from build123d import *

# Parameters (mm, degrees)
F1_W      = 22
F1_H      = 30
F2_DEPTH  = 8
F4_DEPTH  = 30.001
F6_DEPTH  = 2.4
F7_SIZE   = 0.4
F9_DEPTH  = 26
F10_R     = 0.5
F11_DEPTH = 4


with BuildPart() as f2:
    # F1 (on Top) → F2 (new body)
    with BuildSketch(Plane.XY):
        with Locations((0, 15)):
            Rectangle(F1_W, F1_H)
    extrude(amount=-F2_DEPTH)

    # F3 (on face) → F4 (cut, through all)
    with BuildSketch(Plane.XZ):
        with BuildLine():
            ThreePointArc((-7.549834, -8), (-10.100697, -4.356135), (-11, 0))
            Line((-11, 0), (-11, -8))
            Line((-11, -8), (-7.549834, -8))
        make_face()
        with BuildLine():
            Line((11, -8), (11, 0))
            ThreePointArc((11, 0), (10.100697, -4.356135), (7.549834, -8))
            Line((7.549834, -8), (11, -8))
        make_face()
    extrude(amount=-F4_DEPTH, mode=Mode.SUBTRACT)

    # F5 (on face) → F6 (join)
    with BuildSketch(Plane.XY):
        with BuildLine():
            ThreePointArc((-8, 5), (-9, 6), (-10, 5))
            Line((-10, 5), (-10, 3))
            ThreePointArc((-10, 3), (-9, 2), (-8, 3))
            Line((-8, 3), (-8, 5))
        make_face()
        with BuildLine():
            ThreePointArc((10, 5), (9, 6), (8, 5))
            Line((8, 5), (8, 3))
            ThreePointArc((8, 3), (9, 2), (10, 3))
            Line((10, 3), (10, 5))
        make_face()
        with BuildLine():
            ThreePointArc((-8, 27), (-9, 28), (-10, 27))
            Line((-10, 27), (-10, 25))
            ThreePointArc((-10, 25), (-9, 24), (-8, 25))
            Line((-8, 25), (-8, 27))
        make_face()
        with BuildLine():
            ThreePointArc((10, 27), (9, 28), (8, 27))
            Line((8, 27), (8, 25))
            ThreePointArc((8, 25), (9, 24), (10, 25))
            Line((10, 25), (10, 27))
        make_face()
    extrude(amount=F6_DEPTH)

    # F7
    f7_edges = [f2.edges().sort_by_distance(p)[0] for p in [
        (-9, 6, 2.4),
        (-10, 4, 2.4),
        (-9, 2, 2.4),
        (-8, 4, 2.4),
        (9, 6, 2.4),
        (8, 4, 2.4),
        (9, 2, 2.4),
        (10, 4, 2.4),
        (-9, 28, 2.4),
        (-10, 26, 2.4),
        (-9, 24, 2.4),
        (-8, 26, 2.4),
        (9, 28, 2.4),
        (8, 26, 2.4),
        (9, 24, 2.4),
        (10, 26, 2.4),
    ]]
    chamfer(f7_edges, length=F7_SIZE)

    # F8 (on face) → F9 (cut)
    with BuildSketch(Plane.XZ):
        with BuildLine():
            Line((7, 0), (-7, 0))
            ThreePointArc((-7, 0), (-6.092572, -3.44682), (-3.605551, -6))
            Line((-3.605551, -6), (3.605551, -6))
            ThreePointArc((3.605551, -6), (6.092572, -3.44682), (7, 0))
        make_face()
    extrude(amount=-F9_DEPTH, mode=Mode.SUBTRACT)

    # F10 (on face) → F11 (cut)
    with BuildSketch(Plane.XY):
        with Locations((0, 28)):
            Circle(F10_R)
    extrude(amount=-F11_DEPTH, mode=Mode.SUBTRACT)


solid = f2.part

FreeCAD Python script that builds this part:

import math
import FreeCAD as App
import Part
import Sketcher

V = App.Vector


def edges_at(feature, points):
    """Names of the edges that pass closest to the given points."""
    edges = feature.Shape.Edges
    near = lambda p: min(range(len(edges)), key=lambda i: edges[i].distToShape(Part.Vertex(*p))[0])
    return sorted({f"Edge{near(p) + 1}" for p in points})

doc = App.newDocument("Part")
body = doc.addObject("PartDesign::Body", "Body")

sketch1 = doc.addObject("Sketcher::SketchObject", "Sketch")
body.addObject(sketch1)
sketch1.AttachmentSupport = (doc.XY_Plane, [""])
sketch1.MapMode = "FlatFace"
sketch1.addGeometry([
    Part.LineSegment(V(-11, 30, 0), V(-11, 0, 0)),
    Part.LineSegment(V(-11, 0, 0), V(11, 0, 0)),
    Part.LineSegment(V(11, 0, 0), V(11, 30, 0)),
    Part.LineSegment(V(11, 30, 0), V(-11, 30, 0)),
], False)
sketch1.addConstraint([
    Sketcher.Constraint("Coincident", 0, 2, 1, 1),
    Sketcher.Constraint("Coincident", 1, 2, 2, 1),
    Sketcher.Constraint("Coincident", 2, 2, 3, 1),
    Sketcher.Constraint("Coincident", 3, 2, 0, 1),
    Sketcher.Constraint("Vertical", 0),
    Sketcher.Constraint("Horizontal", 1),
    Sketcher.Constraint("Vertical", 2),
    Sketcher.Constraint("Horizontal", 3),
    Sketcher.Constraint("Symmetric", 0, 2, 1, 2, -1, 1),
    Sketcher.Constraint("DistanceX", 1, 1, 1, 2, 22.0),
    Sketcher.Constraint("DistanceY", 0, 2, 0, 1, 30.0),
])
pad1 = doc.addObject("PartDesign::Pad", "Pad")
body.addObject(pad1)
pad1.Profile = sketch1
pad1.Length = 8
pad1.Reversed = True

sketch2 = doc.addObject("Sketcher::SketchObject", "Sketch001")
body.addObject(sketch2)
sketch2.AttachmentSupport = (doc.XZ_Plane, [""])
sketch2.MapMode = "FlatFace"
sketch2.addGeometry([
    Part.ArcOfCircle(Part.Circle(V(0.000002, 0.000001, 0), V(0, 0, 1), 11.000002), math.radians(-179.999993), math.radians(-133.34176)),
    Part.LineSegment(V(-11, 0, 0), V(-11, -8, 0)),
    Part.LineSegment(V(-11, -8, 0), V(-7.549834, -8, 0)),
    Part.LineSegment(V(11, -8, 0), V(11, 0, 0)),
    Part.ArcOfCircle(Part.Circle(V(-0.000002, 0.000001, 0), V(0, 0, 1), 11.000002), math.radians(-46.65824), math.radians(-0.000007)),
    Part.LineSegment(V(7.549834, -8, 0), V(11, -8, 0)),
], False)
sketch2.addConstraint([
    Sketcher.Constraint("Tangent", 0, 1, 1, 1),
    Sketcher.Constraint("Coincident", 1, 2, 2, 1),
    Sketcher.Constraint("Coincident", 2, 2, 0, 2),
    Sketcher.Constraint("Tangent", 3, 2, 4, 2),
    Sketcher.Constraint("Coincident", 4, 1, 5, 1),
    Sketcher.Constraint("Coincident", 5, 2, 3, 1),
    Sketcher.Constraint("Vertical", 1),
    Sketcher.Constraint("Horizontal", 2),
    Sketcher.Constraint("Vertical", 3),
    Sketcher.Constraint("Horizontal", 5),
    Sketcher.Constraint("Coincident", 0, 3, -1, 1),
    Sketcher.Constraint("Coincident", 4, 3, -1, 1),
    Sketcher.Constraint("Equal", 0, 4),
    Sketcher.Constraint("Horizontal", 2, 2, 4, 1),
    Sketcher.Constraint("DistanceY", 1, 2, 1, 1, 8.0),
    Sketcher.Constraint("DistanceX", 0, 1, -1, 1, 11.0),
])
pocket1 = doc.addObject("PartDesign::Pocket", "Pocket")
body.addObject(pocket1)
pocket1.Profile = sketch2
pocket1.Type = "ThroughAll"

sketch3 = doc.addObject("Sketcher::SketchObject", "Sketch002")
body.addObject(sketch3)
sketch3.AttachmentSupport = (doc.XY_Plane, [""])
sketch3.MapMode = "FlatFace"
sketch3.addGeometry([
    Part.ArcOfCircle(Part.Circle(V(-9, 5, 0), V(0, 0, 1), 1), math.radians(0), math.radians(180)),
    Part.LineSegment(V(-10, 5, 0), V(-10, 3, 0)),
    Part.ArcOfCircle(Part.Circle(V(-9, 3, 0), V(0, 0, 1), 1), math.radians(180), math.radians(360)),
    Part.LineSegment(V(-8, 3, 0), V(-8, 5, 0)),
    Part.ArcOfCircle(Part.Circle(V(9, 5, 0), V(0, 0, 1), 1), math.radians(0), math.radians(180)),
    Part.LineSegment(V(8, 5, 0), V(8, 3, 0)),
    Part.ArcOfCircle(Part.Circle(V(9, 3, 0), V(0, 0, 1), 1), math.radians(180), math.radians(360)),
    Part.LineSegment(V(10, 3, 0), V(10, 5, 0)),
    Part.ArcOfCircle(Part.Circle(V(-9, 27, 0), V(0, 0, 1), 1), math.radians(0), math.radians(180)),
    Part.LineSegment(V(-10, 27, 0), V(-10, 25, 0)),
    Part.ArcOfCircle(Part.Circle(V(-9, 25, 0), V(0, 0, 1), 1), math.radians(180), math.radians(360)),
    Part.LineSegment(V(-8, 25, 0), V(-8, 27, 0)),
    Part.ArcOfCircle(Part.Circle(V(9, 27, 0), V(0, 0, 1), 1), math.radians(0), math.radians(180)),
    Part.LineSegment(V(8, 27, 0), V(8, 25, 0)),
    Part.ArcOfCircle(Part.Circle(V(9, 25, 0), V(0, 0, 1), 1), math.radians(180), math.radians(360)),
    Part.LineSegment(V(10, 25, 0), V(10, 27, 0)),
], False)
sketch3.addConstraint([
    Sketcher.Constraint("Tangent", 0, 2, 1, 1),
    Sketcher.Constraint("Tangent", 1, 2, 2, 1),
    Sketcher.Constraint("Tangent", 2, 2, 3, 1),
    Sketcher.Constraint("Tangent", 3, 2, 0, 1),
    Sketcher.Constraint("Tangent", 4, 2, 5, 1),
    Sketcher.Constraint("Tangent", 5, 2, 6, 1),
    Sketcher.Constraint("Tangent", 6, 2, 7, 1),
    Sketcher.Constraint("Tangent", 7, 2, 4, 1),
    Sketcher.Constraint("Tangent", 8, 2, 9, 1),
    Sketcher.Constraint("Tangent", 9, 2, 10, 1),
    Sketcher.Constraint("Tangent", 10, 2, 11, 1),
    Sketcher.Constraint("Tangent", 11, 2, 8, 1),
    Sketcher.Constraint("Tangent", 12, 2, 13, 1),
    Sketcher.Constraint("Tangent", 13, 2, 14, 1),
    Sketcher.Constraint("Tangent", 14, 2, 15, 1),
    Sketcher.Constraint("Tangent", 15, 2, 12, 1),
    Sketcher.Constraint("Vertical", 1),
    Sketcher.Constraint("Vertical", 3),
    Sketcher.Constraint("Vertical", 5),
    Sketcher.Constraint("Vertical", 7),
    Sketcher.Constraint("Vertical", 9),
    Sketcher.Constraint("Vertical", 11),
    Sketcher.Constraint("Vertical", 13),
    Sketcher.Constraint("Vertical", 15),
    Sketcher.Constraint("Equal", 2, 4),
    Sketcher.Constraint("Equal", 6, 8),
    Sketcher.Constraint("Equal", 10, 12),
    Sketcher.Constraint("Symmetric", 0, 3, 4, 3, -2),
    Sketcher.Constraint("Symmetric", 8, 3, 12, 3, -2),
    Sketcher.Constraint("Horizontal", 2, 3, 6, 3),
    Sketcher.Constraint("Horizontal", 10, 3, 14, 3),
    Sketcher.Constraint("Vertical", 2, 3, 8, 3),
    Sketcher.Constraint("Equal", 7, 9),
    Sketcher.Constraint("Radius", 0, 1.0),
    Sketcher.Constraint("DistanceY", 1, 2, 1, 1, 2.0),
    Sketcher.Constraint("DistanceX", 0, 3, -1, 1, 9.0),
    Sketcher.Constraint("DistanceY", -1, 1, 0, 3, 5.0),
    Sketcher.Constraint("DistanceY", -1, 1, 8, 3, 27.0),
])
pad2 = doc.addObject("PartDesign::Pad", "Pad001")
body.addObject(pad2)
pad2.Profile = sketch3
pad2.Length = 2.4
doc.recompute()

chamfer = doc.addObject("PartDesign::Chamfer", "Chamfer")
body.addObject(chamfer)
chamfer.Base = (pad2, edges_at(pad2, [
    (-9, 6, 2.4),
    (-10, 4, 2.4),
    (-9, 2, 2.4),
    (-8, 4, 2.4),
    (9, 6, 2.4),
    (8, 4, 2.4),
    (9, 2, 2.4),
    (10, 4, 2.4),
    (-9, 28, 2.4),
    (-10, 26, 2.4),
    (-9, 24, 2.4),
    (-8, 26, 2.4),
    (9, 28, 2.4),
    (8, 26, 2.4),
    (9, 24, 2.4),
    (10, 26, 2.4),
]))
chamfer.Size = 0.4

sketch4 = doc.addObject("Sketcher::SketchObject", "Sketch003")
body.addObject(sketch4)
sketch4.AttachmentSupport = (doc.XZ_Plane, [""])
sketch4.MapMode = "FlatFace"
sketch4.addGeometry([
    Part.LineSegment(V(7, 0, 0), V(-7, 0, 0)),
    Part.ArcOfCircle(Part.Circle(V(-0.000001, -0.000001, 0), V(0, 0, 1), 6.999999), math.radians(179.999995), math.radians(238.99729)),
    Part.LineSegment(V(-3.605551, -6, 0), V(3.605551, -6, 0)),
    Part.ArcOfCircle(Part.Circle(V(0.000001, -0.000001, 0), V(0, 0, 1), 6.999999), math.radians(-58.99729), math.radians(0.000005)),
], False)
sketch4.addConstraint([
    Sketcher.Constraint("Coincident", 0, 2, 1, 1),
    Sketcher.Constraint("Coincident", 1, 2, 2, 1),
    Sketcher.Constraint("Coincident", 2, 2, 3, 1),
    Sketcher.Constraint("Coincident", 3, 2, 0, 1),
    Sketcher.Constraint("Horizontal", 0),
    Sketcher.Constraint("Horizontal", 2),
    Sketcher.Constraint("Coincident", 1, 3, -1, 1),
    Sketcher.Constraint("Coincident", 3, 3, -1, 1),
    Sketcher.Constraint("Equal", 1, 3),
    Sketcher.Constraint("PointOnObject", 0, 2, -1),
    Sketcher.Constraint("Radius", 1, 6.999999),
    Sketcher.Constraint("DistanceY", 1, 2, -1, 1, 6.0),
])
pocket2 = doc.addObject("PartDesign::Pocket", "Pocket001")
body.addObject(pocket2)
pocket2.Profile = sketch4
pocket2.Length = 26

sketch5 = doc.addObject("Sketcher::SketchObject", "Sketch004")
body.addObject(sketch5)
sketch5.AttachmentSupport = (doc.XY_Plane, [""])
sketch5.MapMode = "FlatFace"
sketch5.addGeometry(Part.Circle(V(0, 28, 0), V(0, 0, 1), 0.5), False)
sketch5.addConstraint([
    Sketcher.Constraint("PointOnObject", 0, 3, -2),
    Sketcher.Constraint("Diameter", 0, 1.0),
    Sketcher.Constraint("DistanceY", -1, 1, 0, 3, 28.0),
])
pocket3 = doc.addObject("PartDesign::Pocket", "Pocket002")
body.addObject(pocket3)
pocket3.Profile = sketch5
pocket3.Length = 4

doc.recompute()
